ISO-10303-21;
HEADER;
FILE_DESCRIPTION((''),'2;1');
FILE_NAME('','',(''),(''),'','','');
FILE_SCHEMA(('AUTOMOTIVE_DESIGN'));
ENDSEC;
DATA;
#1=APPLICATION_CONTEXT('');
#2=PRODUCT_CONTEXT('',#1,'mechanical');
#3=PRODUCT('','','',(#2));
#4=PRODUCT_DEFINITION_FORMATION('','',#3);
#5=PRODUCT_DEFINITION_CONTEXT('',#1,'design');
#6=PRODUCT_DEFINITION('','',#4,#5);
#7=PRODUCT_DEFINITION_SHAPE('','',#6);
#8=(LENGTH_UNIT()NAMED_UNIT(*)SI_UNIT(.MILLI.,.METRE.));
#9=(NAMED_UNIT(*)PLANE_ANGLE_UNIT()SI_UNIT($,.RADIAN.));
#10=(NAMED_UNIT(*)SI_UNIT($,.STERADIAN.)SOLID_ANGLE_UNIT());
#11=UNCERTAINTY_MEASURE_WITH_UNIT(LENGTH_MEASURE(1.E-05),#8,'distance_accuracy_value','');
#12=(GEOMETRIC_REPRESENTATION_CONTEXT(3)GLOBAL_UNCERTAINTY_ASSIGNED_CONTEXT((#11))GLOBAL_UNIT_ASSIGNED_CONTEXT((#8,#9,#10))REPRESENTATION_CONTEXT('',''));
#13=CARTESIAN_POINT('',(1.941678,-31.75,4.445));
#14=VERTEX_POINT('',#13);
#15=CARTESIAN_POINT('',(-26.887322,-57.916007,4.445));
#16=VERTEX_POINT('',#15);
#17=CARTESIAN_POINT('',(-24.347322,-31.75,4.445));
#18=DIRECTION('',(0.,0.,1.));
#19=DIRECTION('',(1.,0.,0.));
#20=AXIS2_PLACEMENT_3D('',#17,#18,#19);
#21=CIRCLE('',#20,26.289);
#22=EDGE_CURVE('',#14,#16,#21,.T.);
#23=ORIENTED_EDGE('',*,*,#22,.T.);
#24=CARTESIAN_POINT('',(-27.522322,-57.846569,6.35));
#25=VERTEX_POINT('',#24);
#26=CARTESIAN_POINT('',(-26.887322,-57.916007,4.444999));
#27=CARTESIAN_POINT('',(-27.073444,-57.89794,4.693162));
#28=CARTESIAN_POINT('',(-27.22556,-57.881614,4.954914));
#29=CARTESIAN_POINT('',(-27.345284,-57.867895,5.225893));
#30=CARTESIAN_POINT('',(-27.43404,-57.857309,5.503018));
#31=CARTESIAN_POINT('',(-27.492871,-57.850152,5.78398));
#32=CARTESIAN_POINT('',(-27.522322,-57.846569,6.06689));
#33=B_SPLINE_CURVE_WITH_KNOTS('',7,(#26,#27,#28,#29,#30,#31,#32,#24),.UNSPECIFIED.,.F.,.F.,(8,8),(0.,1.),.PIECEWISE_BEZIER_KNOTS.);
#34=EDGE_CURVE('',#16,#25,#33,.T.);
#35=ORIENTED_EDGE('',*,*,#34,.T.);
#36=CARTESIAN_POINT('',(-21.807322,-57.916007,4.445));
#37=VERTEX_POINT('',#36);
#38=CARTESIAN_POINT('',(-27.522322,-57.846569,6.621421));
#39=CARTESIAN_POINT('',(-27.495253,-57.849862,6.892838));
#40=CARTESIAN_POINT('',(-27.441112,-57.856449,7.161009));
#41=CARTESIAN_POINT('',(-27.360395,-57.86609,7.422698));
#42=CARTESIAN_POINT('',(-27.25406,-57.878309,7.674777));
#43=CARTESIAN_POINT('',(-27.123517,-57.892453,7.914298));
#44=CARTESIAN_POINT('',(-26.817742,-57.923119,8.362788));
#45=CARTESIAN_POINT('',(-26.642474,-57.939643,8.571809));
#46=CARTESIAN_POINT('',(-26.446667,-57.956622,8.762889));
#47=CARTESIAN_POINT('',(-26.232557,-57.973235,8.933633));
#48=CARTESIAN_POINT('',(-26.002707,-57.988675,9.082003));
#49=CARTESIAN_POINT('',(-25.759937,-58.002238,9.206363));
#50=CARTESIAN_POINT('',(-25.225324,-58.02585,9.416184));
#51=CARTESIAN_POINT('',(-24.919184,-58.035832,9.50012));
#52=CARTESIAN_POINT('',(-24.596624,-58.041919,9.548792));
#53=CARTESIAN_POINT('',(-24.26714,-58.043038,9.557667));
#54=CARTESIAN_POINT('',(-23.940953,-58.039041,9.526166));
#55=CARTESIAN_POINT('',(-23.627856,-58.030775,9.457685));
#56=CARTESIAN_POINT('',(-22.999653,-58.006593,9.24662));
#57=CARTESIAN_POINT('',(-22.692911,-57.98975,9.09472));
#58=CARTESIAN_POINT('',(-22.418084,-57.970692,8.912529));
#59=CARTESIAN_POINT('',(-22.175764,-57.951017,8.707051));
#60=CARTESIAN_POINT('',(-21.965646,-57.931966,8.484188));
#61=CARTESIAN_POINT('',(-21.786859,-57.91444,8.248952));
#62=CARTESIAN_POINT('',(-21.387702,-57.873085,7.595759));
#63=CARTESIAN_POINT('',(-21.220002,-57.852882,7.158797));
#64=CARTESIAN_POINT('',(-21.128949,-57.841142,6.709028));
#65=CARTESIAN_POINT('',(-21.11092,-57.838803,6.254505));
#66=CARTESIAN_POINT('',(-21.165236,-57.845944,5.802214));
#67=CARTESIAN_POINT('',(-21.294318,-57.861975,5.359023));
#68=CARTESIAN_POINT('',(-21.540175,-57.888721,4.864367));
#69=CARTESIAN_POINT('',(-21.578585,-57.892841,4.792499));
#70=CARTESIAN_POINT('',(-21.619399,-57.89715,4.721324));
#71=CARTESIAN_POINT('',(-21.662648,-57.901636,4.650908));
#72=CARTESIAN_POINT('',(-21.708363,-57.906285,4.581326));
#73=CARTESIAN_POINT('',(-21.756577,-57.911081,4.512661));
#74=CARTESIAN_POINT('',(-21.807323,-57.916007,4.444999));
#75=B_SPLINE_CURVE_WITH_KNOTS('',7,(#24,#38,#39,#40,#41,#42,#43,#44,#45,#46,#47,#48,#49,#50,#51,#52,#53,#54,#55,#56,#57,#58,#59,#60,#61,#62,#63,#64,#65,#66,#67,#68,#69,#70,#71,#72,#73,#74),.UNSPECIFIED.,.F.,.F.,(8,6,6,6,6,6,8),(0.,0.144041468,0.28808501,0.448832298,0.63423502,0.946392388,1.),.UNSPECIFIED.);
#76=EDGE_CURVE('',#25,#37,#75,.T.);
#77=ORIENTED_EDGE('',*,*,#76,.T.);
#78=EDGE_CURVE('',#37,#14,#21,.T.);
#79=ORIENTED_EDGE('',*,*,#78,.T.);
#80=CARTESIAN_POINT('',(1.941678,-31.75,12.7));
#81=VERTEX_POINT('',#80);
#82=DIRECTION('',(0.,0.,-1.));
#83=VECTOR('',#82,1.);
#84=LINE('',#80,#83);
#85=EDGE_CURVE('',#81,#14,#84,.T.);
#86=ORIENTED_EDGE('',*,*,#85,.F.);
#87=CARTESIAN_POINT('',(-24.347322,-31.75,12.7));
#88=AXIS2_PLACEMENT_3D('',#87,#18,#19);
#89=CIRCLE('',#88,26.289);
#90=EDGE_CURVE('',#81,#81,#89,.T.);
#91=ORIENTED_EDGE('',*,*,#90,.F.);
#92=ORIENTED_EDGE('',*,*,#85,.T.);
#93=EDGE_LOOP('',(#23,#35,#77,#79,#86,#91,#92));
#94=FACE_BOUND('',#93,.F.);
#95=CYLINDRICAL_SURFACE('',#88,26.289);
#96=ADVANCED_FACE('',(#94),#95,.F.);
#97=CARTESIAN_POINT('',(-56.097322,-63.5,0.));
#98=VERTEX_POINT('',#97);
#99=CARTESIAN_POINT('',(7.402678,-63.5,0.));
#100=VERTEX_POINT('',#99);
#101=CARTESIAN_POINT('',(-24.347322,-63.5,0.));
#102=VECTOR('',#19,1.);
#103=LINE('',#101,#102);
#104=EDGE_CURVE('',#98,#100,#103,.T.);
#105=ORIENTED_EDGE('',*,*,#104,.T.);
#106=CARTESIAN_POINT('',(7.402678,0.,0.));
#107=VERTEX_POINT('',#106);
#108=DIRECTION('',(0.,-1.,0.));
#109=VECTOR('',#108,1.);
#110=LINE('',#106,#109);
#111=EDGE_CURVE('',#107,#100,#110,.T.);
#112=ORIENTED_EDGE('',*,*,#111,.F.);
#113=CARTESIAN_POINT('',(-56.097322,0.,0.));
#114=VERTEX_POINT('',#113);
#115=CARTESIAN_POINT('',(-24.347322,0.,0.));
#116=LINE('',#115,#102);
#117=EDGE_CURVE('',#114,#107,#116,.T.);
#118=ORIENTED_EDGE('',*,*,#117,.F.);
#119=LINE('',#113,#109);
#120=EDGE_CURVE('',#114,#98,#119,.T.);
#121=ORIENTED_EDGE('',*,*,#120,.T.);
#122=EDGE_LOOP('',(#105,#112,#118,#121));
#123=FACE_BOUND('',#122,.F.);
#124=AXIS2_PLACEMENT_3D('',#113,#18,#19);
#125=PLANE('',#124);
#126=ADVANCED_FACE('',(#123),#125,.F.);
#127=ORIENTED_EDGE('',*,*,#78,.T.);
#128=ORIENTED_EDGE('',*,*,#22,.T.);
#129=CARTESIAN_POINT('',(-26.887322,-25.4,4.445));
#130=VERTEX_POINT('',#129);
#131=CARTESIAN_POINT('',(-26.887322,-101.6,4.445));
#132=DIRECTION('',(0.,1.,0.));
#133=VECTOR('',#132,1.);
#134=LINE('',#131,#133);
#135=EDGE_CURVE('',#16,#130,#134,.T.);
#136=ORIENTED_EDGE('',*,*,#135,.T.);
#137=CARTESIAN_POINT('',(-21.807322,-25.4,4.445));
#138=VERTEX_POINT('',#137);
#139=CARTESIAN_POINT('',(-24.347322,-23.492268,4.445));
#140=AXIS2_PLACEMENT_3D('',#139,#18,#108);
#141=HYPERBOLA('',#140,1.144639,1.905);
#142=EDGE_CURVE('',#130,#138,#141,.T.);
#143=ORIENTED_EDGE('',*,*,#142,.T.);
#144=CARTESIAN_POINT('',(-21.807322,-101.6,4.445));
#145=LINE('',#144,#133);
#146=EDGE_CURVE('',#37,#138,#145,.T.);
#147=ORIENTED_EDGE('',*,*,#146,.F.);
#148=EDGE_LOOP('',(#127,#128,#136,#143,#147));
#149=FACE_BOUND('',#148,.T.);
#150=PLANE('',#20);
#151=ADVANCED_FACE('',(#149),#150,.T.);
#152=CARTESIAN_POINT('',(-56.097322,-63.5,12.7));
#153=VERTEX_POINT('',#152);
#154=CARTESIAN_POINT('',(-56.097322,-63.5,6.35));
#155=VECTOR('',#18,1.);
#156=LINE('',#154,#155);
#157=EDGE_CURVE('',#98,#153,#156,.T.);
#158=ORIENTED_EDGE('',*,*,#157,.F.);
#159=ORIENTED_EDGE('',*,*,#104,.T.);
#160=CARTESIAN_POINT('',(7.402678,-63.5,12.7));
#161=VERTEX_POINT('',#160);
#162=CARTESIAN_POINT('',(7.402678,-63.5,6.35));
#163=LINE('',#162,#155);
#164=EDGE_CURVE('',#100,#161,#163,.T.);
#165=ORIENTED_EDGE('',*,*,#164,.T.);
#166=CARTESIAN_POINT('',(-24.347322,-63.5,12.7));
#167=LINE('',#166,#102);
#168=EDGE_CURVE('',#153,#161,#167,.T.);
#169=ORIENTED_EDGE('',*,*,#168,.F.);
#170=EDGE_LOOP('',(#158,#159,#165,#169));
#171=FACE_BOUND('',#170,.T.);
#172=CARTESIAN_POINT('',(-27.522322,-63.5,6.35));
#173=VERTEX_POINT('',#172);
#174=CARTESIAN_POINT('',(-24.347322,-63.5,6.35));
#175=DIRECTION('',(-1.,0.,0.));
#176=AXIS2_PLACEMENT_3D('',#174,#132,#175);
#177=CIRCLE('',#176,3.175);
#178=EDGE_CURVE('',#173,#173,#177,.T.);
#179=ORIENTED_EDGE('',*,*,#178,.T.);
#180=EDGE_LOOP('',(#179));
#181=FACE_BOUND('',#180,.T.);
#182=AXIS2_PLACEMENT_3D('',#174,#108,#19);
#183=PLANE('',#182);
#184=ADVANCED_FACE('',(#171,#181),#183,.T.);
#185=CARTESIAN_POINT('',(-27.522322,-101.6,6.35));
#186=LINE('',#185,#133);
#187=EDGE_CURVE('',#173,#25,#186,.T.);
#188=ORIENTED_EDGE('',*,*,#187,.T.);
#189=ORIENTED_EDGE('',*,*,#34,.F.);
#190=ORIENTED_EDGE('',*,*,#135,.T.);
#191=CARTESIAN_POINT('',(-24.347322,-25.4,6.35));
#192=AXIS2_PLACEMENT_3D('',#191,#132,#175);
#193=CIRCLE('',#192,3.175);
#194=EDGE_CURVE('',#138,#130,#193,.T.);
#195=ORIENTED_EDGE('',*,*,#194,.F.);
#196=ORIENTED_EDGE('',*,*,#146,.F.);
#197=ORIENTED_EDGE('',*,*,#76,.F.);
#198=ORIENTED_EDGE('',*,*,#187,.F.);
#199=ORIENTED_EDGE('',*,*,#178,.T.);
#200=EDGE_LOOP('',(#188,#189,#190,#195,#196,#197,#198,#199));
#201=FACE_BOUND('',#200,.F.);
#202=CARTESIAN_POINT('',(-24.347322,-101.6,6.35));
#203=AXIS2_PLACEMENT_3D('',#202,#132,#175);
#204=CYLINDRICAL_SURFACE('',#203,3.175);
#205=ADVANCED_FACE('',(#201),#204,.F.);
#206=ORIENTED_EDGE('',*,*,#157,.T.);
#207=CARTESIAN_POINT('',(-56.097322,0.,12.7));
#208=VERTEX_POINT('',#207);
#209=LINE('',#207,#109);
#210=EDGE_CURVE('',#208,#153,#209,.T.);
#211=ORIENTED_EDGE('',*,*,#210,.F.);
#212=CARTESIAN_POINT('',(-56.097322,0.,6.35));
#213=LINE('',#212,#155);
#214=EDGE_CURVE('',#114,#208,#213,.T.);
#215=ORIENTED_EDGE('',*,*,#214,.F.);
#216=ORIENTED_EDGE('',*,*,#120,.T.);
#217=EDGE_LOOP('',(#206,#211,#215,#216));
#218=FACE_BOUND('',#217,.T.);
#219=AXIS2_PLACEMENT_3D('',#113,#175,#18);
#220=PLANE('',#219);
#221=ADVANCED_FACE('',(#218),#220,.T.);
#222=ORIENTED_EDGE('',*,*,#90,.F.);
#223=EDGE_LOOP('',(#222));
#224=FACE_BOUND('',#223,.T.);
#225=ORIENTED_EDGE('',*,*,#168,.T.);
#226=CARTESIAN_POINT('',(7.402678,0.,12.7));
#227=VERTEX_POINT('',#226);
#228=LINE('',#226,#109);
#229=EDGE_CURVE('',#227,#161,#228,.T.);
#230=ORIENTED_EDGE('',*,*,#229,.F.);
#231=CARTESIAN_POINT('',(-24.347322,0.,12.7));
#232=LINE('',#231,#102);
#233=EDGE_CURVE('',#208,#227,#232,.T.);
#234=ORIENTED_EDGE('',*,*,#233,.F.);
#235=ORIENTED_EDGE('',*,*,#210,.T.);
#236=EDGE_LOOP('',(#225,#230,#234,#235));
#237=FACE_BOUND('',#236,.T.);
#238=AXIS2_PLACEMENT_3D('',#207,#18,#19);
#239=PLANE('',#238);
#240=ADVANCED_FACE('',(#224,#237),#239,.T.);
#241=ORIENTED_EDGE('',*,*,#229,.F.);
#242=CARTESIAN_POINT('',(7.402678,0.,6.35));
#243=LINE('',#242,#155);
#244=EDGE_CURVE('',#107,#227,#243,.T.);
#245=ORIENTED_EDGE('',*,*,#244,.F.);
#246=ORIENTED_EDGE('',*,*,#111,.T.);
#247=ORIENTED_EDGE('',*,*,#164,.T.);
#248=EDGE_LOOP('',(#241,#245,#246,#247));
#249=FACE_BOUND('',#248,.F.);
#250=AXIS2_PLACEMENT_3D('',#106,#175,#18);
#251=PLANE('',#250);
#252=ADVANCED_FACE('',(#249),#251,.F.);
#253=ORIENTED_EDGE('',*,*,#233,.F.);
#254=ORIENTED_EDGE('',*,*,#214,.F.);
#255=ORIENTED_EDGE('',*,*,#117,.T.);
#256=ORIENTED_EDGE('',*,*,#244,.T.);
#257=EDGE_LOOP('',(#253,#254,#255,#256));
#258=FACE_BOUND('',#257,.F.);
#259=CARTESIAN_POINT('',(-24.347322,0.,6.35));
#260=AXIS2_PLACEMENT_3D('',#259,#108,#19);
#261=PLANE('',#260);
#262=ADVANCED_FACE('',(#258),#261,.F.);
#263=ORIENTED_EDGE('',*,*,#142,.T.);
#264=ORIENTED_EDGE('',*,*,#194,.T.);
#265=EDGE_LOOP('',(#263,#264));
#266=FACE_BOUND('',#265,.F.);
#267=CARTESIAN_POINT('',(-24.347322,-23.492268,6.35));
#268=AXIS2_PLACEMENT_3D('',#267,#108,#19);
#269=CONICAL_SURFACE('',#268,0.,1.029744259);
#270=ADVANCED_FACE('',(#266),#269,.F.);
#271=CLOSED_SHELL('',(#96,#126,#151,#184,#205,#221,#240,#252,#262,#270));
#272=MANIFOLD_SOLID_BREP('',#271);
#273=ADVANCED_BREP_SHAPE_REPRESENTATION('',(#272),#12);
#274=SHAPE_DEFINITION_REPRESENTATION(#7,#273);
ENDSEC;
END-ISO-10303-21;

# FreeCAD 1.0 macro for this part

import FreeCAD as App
import Part
import Sketcher
Q = App.Units.Quantity


def add_polygon(sketch, points):
    """Adds a closed chain of lines whose ends are joined by coincident constraints."""
    first, n = sketch.GeometryCount, len(points)
    for a, b in zip(points, points[1:] + points[:1]):
        sketch.addGeometry(Part.LineSegment(App.Vector(*a, 0), App.Vector(*b, 0)), False)
    for i in range(n):
        sketch.addConstraint(Sketcher.Constraint("Coincident", first + i, 2, first + (i + 1) % n, 1))

doc = App.newDocument("Part")
body = doc.addObject("PartDesign::Body", "Body")

# Sketch on XZ plane
sketch1 = body.newObject("Sketcher::SketchObject", "Sketch")
sketch1.AttachmentSupport = (doc.getObject("XZ_Plane"), [""])
sketch1.MapMode = "FlatFace"
add_polygon(sketch1, [(-56, 13), (-56, 0), (7, 0), (7, 13)])  # lines 0-3
sketch1.addConstraint([
    Sketcher.Constraint("Vertical", 0),
    Sketcher.Constraint("Horizontal", 1),
    Sketcher.Constraint("Vertical", 2),
    Sketcher.Constraint("Horizontal", 3),
    Sketcher.Constraint("PointOnObject", 0, 2, -1),
    Sketcher.Constraint("DistanceX", 1, 1, 1, 2, Q("2.5 in")),
    Sketcher.Constraint("DistanceY", 0, 2, 0, 1, Q("0.5 in")),
    Sketcher.Constraint("DistanceX", 0, 2, -1, 1, Q("56.097322 mm")),
])
pad1 = body.newObject("PartDesign::Pad", "Pad")
pad1.Profile = sketch1
pad1.Length = Q("2.5 in")

# Sketch on XY plane
sketch2 = body.newObject("Sketcher::SketchObject", "Sketch001")
sketch2.AttachmentSupport = (doc.getObject("XY_Plane"), [""])
sketch2.MapMode = "FlatFace"
sketch2.AttachmentOffset = App.Placement(App.Vector(0, 0, 0.5 * 25.4), App.Rotation())
sketch2.addGeometry(Part.Circle(App.Vector(-24, -32, 0), App.Vector(0, 0, 1), 26), False)
sketch2.addConstraint([
    Sketcher.Constraint("Diameter", 0, Q("2.07 in")),
    Sketcher.Constraint("DistanceY", 0, 3, -1, 1, Q("1.25 in")),
    Sketcher.Constraint("DistanceX", 0, 3, -1, 1, Q("24.347322 mm")),
])
pocket1 = body.newObject("PartDesign::Pocket", "Pocket")
pocket1.Profile = sketch2
pocket1.Length = Q("0.325 in")

# Sketch on XZ plane
sketch3 = body.newObject("Sketcher::SketchObject", "Sketch002")
sketch3.AttachmentSupport = (doc.getObject("XZ_Plane"), [""])
sketch3.MapMode = "FlatFace"
sketch3.AttachmentOffset = App.Placement(App.Vector(0, 0, 2.5 * 25.4), App.Rotation())
sketch3.addGeometry(Part.Circle(App.Vector(-24.3, 6.3, 0), App.Vector(0, 0, 1), 3.2), False)
sketch3.addConstraint([
    Sketcher.Constraint("Diameter", 0, Q("0.25 in")),
    Sketcher.Constraint("DistanceY", -1, 1, 0, 3, Q("0.25 in")),
    Sketcher.Constraint("DistanceX", 0, 3, -1, 1, Q("24.347322 mm")),
])
doc.recompute()
hole = body.newObject("PartDesign::Hole", "Hole")
hole.Profile = sketch3
hole.ThreadType = "None"
hole.Diameter = Q("0.25 in")
hole.DepthType = "Dimension"
hole.Depth = Q("1.5 in")
hole.DrillPoint = "Angled"
hole.DrillPointAngle = 118

doc.recompute()
